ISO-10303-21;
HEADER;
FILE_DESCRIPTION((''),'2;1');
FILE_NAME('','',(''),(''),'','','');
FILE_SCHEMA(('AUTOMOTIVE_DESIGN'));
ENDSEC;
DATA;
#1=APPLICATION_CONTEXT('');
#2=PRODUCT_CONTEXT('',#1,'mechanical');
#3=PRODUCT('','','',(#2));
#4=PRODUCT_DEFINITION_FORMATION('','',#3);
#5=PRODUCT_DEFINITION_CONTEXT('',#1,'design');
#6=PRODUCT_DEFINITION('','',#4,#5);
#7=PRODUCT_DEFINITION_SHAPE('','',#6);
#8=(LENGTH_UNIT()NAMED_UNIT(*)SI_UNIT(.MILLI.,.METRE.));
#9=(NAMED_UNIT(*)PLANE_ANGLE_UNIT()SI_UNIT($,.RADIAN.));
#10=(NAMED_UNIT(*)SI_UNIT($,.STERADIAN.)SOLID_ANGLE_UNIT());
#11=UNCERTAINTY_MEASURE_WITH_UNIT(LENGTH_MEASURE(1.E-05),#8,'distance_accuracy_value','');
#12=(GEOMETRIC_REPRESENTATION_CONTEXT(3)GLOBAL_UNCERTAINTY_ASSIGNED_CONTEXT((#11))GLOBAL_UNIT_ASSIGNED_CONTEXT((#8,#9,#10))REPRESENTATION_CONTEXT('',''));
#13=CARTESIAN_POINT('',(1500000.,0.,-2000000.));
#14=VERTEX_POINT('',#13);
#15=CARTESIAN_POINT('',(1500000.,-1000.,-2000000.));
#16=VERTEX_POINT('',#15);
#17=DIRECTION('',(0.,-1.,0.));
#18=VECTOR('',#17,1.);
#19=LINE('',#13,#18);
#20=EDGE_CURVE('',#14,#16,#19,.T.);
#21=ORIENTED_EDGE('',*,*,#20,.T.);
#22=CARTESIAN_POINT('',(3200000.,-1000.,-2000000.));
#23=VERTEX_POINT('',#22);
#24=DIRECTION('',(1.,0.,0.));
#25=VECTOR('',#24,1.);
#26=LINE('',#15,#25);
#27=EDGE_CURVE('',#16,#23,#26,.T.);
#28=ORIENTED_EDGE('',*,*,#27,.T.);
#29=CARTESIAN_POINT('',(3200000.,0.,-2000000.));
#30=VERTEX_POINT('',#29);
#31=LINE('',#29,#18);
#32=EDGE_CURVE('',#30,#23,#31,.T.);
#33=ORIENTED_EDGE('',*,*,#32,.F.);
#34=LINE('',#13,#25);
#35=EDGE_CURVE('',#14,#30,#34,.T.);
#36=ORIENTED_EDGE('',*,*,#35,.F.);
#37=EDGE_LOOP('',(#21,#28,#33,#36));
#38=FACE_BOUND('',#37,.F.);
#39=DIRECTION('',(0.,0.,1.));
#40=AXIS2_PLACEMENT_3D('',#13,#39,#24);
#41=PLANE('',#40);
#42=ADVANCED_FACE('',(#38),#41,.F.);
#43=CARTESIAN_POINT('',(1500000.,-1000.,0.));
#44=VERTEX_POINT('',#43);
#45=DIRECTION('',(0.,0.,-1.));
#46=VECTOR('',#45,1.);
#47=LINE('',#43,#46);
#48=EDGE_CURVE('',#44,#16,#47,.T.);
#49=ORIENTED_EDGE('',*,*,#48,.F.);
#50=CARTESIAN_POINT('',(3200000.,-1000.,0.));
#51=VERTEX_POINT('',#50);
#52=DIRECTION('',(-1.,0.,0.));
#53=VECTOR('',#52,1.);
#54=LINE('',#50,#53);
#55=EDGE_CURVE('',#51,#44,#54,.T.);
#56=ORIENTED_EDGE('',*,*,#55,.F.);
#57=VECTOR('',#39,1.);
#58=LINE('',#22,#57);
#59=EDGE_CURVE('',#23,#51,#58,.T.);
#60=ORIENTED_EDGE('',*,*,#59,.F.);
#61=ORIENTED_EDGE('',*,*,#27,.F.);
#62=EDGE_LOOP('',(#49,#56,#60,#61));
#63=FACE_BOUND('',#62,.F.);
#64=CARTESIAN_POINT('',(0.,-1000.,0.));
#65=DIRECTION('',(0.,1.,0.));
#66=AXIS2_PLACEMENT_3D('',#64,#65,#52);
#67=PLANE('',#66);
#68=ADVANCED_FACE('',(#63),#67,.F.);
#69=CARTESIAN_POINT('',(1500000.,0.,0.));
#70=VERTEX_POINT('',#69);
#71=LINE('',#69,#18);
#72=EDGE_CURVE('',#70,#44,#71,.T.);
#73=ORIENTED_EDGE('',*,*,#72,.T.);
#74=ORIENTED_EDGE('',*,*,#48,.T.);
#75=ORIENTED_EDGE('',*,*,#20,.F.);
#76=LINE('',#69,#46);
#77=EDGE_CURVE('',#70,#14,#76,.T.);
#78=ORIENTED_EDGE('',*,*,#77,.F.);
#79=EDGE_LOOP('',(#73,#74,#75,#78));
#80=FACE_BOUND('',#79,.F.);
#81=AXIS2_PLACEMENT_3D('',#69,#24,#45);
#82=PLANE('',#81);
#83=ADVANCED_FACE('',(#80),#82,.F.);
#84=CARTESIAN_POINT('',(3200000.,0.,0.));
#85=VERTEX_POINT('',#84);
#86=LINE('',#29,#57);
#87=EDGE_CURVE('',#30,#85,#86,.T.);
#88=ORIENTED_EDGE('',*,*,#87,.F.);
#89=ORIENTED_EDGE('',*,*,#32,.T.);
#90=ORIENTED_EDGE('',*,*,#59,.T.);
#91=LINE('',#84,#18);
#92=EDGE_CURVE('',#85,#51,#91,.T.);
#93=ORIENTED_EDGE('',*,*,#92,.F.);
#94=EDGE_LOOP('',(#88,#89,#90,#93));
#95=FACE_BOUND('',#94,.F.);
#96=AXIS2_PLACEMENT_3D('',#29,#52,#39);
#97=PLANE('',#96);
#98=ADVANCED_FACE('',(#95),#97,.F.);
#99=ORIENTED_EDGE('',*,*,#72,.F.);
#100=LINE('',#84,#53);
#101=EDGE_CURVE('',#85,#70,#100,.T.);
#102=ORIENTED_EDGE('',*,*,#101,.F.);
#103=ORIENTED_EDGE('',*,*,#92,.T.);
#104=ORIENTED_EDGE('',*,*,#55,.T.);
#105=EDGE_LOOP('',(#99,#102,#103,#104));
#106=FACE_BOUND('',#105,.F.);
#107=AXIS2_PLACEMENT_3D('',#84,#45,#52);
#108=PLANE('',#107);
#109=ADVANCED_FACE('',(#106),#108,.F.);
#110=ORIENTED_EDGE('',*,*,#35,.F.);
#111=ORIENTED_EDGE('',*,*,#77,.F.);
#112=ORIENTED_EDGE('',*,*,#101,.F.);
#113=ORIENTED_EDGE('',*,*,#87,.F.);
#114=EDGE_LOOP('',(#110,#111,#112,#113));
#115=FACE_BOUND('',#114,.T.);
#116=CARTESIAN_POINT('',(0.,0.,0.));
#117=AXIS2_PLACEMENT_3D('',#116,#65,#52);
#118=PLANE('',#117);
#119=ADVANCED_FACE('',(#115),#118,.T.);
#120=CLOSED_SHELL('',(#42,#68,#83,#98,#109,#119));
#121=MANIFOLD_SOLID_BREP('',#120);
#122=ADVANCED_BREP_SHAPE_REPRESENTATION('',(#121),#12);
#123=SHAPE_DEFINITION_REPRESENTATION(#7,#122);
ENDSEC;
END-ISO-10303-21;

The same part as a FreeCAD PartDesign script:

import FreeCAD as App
import Part
import Sketcher
from FreeCAD import Vector
Q = App.Units.Quantity


def add_polygon(sketch, points):
    """Adds a closed chain of lines whose ends are joined by coincident constraints."""
    first, n = sketch.GeometryCount, len(points)
    for a, b in zip(points, points[1:] + points[:1]):
        sketch.addGeometry(Part.LineSegment(App.Vector(*a, 0), App.Vector(*b, 0)), False)
    for i in range(n):
        sketch.addConstraint(Sketcher.Constraint("Coincident", first + i, 2, first + (i + 1) % n, 1))

doc = App.newDocument("Part")
body = doc.addObject("PartDesign::Body", "Body")

sketch1 = doc.addObject("Sketcher::SketchObject", "Sketch")
body.addObject(sketch1)
sketch1.AttachmentSupport = (doc.XZ_Plane, [""])
sketch1.MapMode = "FlatFace"
add_polygon(sketch1, [(3200000, -2000000), (1500000, -2000000), (1500000, 0), (3200000, 0)])
sketch1.addConstraint([
    Sketcher.Constraint("Horizontal", 0),
    Sketcher.Constraint("Vertical", 1),
    Sketcher.Constraint("Horizontal", 2),
    Sketcher.Constraint("Vertical", 3),
    Sketcher.Constraint("PointOnObject", 1, 2, -1),
    Sketcher.Constraint("DistanceX", 0, 2, 0, 1, Q("1700000 mm")),
    Sketcher.Constraint("DistanceY", 1, 1, 1, 2, Q("2000000 mm")),
    Sketcher.Constraint("DistanceX", -1, 1, 0, 2, Q("1500000 mm")),
])
pad1 = doc.addObject("PartDesign::Pad", "Pad")
body.addObject(pad1)
pad1.Profile = sketch1
pad1.Length = 1000

doc.recompute()
